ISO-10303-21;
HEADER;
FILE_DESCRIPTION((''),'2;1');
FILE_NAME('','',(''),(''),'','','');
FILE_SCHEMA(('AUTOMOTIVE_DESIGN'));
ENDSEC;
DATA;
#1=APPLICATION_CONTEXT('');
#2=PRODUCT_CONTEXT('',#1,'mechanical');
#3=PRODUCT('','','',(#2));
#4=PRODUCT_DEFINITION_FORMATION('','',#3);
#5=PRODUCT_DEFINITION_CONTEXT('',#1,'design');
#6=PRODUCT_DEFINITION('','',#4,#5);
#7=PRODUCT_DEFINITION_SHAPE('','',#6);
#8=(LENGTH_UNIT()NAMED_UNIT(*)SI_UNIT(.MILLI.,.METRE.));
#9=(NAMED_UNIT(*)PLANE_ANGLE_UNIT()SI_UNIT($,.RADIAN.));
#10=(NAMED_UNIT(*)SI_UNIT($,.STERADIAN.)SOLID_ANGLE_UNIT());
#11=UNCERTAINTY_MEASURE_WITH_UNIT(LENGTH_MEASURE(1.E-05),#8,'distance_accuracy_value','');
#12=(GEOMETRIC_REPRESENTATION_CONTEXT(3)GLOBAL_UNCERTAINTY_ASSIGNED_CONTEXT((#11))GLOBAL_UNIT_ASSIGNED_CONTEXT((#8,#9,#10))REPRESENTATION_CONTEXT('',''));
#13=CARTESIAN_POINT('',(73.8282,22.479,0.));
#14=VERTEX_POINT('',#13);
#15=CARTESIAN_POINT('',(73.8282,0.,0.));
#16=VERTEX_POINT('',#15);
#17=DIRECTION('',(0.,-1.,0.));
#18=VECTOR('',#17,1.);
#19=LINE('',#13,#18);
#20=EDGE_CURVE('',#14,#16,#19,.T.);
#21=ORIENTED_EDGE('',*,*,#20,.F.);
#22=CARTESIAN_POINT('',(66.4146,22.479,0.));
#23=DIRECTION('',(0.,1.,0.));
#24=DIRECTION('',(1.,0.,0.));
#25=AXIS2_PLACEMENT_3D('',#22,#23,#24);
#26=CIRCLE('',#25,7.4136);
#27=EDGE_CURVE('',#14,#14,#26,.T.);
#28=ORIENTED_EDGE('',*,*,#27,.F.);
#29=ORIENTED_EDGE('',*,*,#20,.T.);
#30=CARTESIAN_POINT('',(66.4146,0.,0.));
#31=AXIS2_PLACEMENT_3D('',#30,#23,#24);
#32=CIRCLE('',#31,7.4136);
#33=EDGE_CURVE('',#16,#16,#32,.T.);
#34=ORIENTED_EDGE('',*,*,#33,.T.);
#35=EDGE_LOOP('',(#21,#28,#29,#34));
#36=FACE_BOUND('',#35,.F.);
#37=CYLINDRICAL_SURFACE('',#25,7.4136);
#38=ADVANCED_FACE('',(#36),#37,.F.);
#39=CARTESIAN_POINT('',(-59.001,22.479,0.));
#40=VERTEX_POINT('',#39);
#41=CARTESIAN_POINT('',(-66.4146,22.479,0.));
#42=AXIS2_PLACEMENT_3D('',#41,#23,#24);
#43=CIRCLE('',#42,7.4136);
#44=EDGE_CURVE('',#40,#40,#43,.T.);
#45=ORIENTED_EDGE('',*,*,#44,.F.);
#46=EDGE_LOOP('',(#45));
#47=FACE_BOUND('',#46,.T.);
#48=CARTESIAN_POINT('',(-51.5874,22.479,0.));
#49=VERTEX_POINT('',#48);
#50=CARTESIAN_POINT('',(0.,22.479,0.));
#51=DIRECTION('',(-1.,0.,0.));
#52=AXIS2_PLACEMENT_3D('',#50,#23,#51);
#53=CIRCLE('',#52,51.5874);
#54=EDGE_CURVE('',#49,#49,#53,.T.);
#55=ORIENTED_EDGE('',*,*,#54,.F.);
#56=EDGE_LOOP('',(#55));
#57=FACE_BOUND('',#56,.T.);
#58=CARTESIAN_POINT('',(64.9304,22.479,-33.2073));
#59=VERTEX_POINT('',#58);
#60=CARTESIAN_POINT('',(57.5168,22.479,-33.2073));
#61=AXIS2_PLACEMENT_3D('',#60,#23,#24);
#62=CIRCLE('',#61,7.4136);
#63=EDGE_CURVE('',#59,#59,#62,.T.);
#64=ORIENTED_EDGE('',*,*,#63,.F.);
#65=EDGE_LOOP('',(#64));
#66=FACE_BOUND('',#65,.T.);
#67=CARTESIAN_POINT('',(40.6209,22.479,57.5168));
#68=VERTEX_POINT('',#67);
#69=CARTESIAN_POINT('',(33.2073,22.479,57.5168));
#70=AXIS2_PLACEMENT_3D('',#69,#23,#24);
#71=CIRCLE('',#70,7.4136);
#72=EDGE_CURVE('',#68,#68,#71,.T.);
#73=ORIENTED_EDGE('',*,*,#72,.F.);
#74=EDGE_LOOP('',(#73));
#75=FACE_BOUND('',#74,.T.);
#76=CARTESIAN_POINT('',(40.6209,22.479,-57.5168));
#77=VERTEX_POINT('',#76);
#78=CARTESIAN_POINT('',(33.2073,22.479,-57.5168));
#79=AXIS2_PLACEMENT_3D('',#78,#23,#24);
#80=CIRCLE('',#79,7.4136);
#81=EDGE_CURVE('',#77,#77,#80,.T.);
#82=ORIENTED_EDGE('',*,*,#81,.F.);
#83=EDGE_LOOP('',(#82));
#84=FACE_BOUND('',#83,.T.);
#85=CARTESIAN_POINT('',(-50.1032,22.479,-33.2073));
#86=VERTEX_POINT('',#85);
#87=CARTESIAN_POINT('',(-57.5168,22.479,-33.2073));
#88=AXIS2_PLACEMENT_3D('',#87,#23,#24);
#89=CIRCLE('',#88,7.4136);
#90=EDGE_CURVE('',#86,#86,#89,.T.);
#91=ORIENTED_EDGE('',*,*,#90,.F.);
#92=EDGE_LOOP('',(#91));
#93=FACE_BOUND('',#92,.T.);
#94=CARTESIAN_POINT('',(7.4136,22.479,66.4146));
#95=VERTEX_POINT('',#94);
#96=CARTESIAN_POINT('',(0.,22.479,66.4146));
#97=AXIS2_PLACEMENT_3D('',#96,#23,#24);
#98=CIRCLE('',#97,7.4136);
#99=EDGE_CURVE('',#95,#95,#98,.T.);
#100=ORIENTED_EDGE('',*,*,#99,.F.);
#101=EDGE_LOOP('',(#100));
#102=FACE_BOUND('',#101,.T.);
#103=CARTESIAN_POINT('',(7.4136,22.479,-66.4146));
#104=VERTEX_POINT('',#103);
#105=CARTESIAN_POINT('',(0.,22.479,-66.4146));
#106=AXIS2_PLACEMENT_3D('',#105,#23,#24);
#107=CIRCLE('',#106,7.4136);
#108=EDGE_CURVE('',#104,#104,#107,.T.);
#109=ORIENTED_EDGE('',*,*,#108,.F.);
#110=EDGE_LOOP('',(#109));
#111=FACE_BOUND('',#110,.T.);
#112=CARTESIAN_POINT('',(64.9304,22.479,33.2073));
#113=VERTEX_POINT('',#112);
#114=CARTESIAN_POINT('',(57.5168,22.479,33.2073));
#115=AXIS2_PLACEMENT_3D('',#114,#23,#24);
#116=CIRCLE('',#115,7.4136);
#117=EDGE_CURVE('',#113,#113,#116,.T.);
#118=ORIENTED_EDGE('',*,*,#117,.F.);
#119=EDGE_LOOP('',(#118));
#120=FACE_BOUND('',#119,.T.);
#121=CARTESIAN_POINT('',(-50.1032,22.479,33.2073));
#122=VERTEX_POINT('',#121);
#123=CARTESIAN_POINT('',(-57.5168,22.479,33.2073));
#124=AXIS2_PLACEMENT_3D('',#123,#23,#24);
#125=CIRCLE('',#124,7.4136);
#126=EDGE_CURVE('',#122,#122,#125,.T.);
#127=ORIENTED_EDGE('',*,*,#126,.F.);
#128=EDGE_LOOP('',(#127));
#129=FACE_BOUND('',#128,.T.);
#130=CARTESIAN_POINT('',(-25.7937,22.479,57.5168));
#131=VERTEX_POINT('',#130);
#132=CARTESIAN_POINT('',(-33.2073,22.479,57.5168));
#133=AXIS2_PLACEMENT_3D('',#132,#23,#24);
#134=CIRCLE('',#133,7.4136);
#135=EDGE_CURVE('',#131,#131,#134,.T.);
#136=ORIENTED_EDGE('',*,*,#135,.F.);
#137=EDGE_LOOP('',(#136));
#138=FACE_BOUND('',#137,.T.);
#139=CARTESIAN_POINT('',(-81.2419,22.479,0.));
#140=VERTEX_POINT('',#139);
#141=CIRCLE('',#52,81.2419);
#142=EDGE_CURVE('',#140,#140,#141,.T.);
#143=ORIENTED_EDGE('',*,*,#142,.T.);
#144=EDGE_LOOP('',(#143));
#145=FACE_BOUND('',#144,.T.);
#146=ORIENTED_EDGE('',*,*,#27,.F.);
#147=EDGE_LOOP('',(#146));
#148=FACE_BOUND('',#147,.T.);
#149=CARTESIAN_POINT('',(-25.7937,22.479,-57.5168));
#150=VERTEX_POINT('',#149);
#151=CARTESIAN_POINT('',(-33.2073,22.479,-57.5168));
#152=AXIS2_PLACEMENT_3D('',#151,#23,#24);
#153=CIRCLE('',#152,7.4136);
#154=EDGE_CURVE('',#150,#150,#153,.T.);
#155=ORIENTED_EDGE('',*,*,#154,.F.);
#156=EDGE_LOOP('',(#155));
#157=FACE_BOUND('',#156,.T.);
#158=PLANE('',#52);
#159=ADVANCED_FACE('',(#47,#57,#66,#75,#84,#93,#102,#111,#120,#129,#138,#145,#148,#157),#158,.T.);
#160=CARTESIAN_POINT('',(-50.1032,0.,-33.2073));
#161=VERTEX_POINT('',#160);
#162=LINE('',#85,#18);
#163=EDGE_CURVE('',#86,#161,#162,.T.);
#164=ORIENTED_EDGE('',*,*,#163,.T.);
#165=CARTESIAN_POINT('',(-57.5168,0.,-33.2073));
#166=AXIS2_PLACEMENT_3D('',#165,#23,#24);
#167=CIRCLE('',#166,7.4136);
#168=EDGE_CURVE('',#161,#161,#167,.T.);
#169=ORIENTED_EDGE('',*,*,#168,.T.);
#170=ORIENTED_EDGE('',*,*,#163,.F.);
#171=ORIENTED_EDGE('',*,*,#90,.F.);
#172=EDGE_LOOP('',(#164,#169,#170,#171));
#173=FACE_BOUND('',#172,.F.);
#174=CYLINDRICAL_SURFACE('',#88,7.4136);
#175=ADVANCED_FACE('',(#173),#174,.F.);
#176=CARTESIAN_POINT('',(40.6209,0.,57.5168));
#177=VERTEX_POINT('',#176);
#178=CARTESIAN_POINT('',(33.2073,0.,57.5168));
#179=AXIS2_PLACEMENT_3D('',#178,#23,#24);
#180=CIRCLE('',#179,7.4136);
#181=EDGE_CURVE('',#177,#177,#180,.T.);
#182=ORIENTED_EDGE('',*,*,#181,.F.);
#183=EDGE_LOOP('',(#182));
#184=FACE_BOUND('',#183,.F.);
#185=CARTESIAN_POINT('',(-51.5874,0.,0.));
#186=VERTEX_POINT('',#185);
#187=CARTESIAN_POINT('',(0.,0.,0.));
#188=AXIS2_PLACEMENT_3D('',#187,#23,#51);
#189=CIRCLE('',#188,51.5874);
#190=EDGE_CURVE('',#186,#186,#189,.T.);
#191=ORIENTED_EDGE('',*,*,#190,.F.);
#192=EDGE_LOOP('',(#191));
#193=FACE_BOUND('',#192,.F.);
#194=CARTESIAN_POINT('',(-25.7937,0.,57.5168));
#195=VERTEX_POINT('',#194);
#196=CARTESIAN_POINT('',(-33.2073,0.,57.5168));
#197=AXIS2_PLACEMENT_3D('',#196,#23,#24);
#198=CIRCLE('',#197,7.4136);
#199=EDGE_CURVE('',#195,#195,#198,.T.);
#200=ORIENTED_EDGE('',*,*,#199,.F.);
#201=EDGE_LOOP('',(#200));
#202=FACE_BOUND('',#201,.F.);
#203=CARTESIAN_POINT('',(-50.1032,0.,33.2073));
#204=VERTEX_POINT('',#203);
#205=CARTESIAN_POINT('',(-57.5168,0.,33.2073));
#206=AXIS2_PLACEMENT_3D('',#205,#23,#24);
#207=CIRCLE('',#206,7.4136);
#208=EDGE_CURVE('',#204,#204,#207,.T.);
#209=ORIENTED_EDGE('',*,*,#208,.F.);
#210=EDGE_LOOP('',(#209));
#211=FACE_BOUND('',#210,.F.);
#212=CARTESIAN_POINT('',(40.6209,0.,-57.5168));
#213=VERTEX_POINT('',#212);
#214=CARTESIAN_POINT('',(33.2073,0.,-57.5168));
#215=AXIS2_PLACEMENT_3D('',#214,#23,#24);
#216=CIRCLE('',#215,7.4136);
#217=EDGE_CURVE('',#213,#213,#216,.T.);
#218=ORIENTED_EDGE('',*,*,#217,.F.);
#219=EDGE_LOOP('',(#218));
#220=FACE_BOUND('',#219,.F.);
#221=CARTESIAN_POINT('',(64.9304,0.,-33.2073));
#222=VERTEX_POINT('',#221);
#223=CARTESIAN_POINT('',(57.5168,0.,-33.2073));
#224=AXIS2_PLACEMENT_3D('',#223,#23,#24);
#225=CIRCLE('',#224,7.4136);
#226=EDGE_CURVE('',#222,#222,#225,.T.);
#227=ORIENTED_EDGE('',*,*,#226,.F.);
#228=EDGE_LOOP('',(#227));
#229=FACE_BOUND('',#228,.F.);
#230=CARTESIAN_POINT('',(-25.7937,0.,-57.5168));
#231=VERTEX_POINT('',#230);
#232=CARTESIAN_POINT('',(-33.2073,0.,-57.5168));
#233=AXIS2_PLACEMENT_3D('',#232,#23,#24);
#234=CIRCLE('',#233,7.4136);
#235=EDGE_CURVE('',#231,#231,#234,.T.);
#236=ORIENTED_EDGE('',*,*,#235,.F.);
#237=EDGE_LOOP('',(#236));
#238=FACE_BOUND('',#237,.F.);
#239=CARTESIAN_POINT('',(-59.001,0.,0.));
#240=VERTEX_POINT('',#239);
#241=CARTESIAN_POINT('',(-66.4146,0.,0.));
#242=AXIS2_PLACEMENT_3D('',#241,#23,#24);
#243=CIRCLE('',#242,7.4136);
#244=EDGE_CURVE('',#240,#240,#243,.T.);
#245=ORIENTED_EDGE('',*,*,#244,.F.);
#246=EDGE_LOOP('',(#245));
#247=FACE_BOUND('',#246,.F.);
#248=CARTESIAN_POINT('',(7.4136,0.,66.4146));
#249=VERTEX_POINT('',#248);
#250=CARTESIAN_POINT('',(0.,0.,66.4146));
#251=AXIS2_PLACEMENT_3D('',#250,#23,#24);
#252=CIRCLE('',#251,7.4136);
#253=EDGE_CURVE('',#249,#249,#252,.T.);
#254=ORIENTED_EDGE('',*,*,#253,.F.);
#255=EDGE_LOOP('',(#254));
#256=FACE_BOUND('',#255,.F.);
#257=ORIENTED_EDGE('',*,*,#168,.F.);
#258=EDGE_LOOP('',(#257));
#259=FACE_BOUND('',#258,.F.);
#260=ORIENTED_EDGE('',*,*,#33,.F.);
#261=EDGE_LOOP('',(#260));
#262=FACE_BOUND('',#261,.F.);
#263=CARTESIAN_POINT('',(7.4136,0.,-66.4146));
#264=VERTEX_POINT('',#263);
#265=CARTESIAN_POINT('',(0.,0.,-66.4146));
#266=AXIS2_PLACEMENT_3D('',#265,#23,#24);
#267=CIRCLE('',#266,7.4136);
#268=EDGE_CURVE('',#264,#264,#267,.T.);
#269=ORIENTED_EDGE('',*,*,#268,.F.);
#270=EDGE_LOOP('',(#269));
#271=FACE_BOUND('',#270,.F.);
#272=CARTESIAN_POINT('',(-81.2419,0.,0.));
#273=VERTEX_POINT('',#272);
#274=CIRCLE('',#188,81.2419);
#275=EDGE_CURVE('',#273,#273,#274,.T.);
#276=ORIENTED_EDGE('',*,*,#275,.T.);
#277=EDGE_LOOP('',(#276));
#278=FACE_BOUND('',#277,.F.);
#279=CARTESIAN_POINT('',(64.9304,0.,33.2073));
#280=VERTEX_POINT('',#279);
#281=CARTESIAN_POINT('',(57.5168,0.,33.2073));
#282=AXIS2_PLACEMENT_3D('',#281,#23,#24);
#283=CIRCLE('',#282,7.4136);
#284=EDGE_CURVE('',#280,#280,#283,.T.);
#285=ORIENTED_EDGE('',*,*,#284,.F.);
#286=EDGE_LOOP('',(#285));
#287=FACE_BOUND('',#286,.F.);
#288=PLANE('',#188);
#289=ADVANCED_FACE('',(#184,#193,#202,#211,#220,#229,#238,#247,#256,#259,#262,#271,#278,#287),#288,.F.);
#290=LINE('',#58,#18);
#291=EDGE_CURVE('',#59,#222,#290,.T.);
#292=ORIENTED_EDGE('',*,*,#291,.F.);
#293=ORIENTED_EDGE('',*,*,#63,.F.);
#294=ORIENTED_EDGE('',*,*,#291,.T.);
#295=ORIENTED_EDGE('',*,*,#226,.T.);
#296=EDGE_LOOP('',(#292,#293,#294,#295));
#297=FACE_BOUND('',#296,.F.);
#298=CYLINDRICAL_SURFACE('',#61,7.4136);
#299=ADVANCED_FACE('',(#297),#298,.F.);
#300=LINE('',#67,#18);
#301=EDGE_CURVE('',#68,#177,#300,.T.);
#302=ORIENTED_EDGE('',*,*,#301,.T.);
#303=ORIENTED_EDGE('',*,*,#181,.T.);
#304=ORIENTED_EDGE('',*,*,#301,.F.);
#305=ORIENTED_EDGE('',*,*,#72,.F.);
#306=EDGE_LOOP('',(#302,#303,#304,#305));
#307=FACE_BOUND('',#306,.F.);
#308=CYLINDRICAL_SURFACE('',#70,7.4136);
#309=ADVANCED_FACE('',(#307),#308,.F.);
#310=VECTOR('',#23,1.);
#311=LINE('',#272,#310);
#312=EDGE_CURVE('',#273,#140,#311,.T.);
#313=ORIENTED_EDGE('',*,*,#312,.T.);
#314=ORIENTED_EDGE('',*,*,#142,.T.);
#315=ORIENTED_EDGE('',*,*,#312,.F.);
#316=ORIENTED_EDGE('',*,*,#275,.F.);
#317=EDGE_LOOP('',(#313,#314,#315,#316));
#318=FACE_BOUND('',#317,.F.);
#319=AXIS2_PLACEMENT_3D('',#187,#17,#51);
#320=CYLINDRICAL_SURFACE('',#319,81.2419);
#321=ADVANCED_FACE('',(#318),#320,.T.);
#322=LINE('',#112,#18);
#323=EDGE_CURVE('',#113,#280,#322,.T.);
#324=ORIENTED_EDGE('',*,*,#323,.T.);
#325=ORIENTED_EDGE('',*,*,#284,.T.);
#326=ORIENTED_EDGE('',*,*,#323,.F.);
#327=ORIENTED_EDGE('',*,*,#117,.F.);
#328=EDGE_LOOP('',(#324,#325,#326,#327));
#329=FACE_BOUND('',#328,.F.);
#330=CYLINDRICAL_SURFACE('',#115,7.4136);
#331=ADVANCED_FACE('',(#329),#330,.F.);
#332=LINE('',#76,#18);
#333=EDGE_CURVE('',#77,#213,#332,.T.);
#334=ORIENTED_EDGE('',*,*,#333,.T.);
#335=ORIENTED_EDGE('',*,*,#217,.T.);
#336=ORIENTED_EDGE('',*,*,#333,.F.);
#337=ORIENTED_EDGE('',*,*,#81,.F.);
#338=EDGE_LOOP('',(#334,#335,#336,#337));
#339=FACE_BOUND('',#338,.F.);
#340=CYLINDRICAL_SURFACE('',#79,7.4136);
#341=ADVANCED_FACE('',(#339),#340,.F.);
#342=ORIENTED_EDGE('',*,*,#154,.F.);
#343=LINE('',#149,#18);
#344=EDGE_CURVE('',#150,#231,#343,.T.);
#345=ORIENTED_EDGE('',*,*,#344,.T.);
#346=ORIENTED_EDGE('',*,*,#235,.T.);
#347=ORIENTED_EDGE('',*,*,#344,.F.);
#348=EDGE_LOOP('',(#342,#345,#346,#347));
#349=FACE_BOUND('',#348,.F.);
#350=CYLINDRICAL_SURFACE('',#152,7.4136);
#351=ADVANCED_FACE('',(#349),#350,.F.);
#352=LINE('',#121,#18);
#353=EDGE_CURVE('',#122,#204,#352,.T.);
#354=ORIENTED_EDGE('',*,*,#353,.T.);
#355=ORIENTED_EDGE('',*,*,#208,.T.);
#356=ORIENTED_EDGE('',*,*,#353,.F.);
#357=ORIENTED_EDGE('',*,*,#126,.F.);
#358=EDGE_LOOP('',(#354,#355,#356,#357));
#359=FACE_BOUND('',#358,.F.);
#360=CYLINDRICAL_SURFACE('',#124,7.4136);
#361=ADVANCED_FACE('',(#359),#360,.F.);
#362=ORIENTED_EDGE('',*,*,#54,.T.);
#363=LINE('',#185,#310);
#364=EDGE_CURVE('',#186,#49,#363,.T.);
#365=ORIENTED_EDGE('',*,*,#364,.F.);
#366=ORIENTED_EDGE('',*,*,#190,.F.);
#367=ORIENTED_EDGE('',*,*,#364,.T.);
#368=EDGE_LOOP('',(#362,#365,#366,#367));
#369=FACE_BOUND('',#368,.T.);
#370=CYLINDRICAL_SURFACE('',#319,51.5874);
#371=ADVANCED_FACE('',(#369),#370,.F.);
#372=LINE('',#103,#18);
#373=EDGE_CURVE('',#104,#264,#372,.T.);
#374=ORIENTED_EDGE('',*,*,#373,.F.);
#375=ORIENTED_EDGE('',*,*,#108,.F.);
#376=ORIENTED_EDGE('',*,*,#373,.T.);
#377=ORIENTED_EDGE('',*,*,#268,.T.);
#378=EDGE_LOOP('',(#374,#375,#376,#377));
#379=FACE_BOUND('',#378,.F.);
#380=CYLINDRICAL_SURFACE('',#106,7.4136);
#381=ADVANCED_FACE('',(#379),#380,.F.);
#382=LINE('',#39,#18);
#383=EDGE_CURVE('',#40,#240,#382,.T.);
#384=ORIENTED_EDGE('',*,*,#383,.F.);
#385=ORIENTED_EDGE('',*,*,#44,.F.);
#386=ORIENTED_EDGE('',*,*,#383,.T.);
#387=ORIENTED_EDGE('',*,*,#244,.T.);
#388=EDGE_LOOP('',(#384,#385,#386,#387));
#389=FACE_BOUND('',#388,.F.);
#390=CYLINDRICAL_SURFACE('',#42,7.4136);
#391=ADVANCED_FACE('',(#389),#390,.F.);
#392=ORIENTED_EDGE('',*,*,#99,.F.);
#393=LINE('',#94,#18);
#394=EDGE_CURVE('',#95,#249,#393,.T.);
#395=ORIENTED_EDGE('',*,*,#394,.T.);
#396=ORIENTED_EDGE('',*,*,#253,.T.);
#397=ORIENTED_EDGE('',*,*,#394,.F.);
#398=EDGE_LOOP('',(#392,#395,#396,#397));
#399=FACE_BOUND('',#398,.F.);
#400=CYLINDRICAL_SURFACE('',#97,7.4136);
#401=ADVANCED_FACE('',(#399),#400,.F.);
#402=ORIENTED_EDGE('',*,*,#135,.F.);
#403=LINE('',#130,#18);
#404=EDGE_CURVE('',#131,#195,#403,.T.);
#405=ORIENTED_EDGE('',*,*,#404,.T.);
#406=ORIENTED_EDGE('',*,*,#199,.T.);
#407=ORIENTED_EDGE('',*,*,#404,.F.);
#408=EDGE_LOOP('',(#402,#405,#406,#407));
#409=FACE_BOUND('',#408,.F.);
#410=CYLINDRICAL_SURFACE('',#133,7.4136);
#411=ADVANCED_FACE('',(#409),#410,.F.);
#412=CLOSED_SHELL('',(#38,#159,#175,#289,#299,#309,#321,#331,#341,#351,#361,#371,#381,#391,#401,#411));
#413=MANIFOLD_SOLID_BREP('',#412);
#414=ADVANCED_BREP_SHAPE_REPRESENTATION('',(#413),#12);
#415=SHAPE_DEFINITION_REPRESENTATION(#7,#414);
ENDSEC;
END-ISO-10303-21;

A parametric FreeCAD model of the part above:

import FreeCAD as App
import Part
import Sketcher
Q = App.Units.Quantity

doc = App.newDocument("Part")
params = doc.addObject("Spreadsheet::Sheet", "Params")
for row, (alias, value) in enumerate([
    ("sketch1_diameter", "6.397 in"),
    ("sketch1_diameter2", "4.062 in"),
    ("pad1_length", "0.885 in"),
], start=1):
    params.set(f"A{row}", alias)
    params.set(f"B{row}", "=" + value)
    params.setAlias(f"B{row}", alias)

body = doc.addObject("PartDesign::Body", "Body")

# Sketch on XZ plane
sketch1 = body.newObject("Sketcher::SketchObject", "Sketch")
sketch1.AttachmentSupport = (doc.getObject("XZ_Plane"), [""])
sketch1.MapMode = "FlatFace"
sketch1.addGeometry(Part.Circle(App.Vector(0, 0, 0), App.Vector(0, 0, 1), 81), False)
sketch1.addGeometry(Part.Circle(App.Vector(0, 0, 0), App.Vector(0, 0, 1), 52), False)
sketch1.addConstraint(Sketcher.Constraint("Coincident", 0, 3, -1, 1))
sketch1.addConstraint(Sketcher.Constraint("Coincident", 1, 3, -1, 1))
sketch1.addConstraint(Sketcher.Constraint("Diameter", 0, Q("6.397 in")))
sketch1.addConstraint(Sketcher.Constraint("Diameter", 1, Q("4.062 in")))
sketch1.setExpression("Constraints[2]", "Params.sketch1_diameter")
sketch1.setExpression("Constraints[3]", "Params.sketch1_diameter2")
pad1 = body.newObject("PartDesign::Pad", "Pad")
pad1.Profile = sketch1
pad1.setExpression("Length", "Params.pad1_length")
pad1.Reversed = True

# Sketch on XZ plane
sketch2 = body.newObject("Sketcher::SketchObject", "Sketch001")
sketch2.AttachmentSupport = (doc.getObject("XZ_Plane"), [""])
sketch2.MapMode = "FlatFace"
sketch2.AttachmentOffset = App.Placement(App.Vector(0, 0, -0.885 * 25.4), App.Rotation())
sketch2.addGeometry(Part.Circle(App.Vector(66, 0, 0), App.Vector(0, 0, 1), 7), False)
sketch2.addGeometry(Part.Circle(App.Vector(58, -33, 0), App.Vector(0, 0, 1), 7), False)
sketch2.addGeometry(Part.Circle(App.Vector(33, -58, 0), App.Vector(0, 0, 1), 7), False)
sketch2.addGeometry(Part.Circle(App.Vector(0, -66, 0), App.Vector(0, 0, 1), 7), False)
sketch2.addGeometry(Part.Circle(App.Vector(-33, -58, 0), App.Vector(0, 0, 1), 7), False)
sketch2.addGeometry(Part.Circle(App.Vector(-58, -33, 0), App.Vector(0, 0, 1), 7), False)
sketch2.addGeometry(Part.Circle(App.Vector(-66, 0, 0), App.Vector(0, 0, 1), 7), False)
sketch2.addGeometry(Part.Circle(App.Vector(-58, 33, 0), App.Vector(0, 0, 1), 7), False)
sketch2.addGeometry(Part.Circle(App.Vector(-33, 58, 0), App.Vector(0, 0, 1), 7), False)
sketch2.addGeometry(Part.Circle(App.Vector(0, 66, 0), App.Vector(0, 0, 1), 7), False)
sketch2.addGeometry(Part.Circle(App.Vector(33, 58, 0), App.Vector(0, 0, 1), 7), False)
sketch2.addGeometry(Part.Circle(App.Vector(58, 33, 0), App.Vector(0, 0, 1), 7), False)
sketch2.addConstraint(Sketcher.Constraint("Equal", 0, 1))
sketch2.addConstraint(Sketcher.Constraint("Equal", 1, 2))
sketch2.addConstraint(Sketcher.Constraint("Equal", 2, 3))
sketch2.addConstraint(Sketcher.Constraint("Equal", 3, 4))
sketch2.addConstraint(Sketcher.Constraint("Equal", 4, 5))
sketch2.addConstraint(Sketcher.Constraint("Equal", 5, 6))
sketch2.addConstraint(Sketcher.Constraint("Equal", 6, 7))
sketch2.addConstraint(Sketcher.Constraint("Equal", 7, 8))
sketch2.addConstraint(Sketcher.Constraint("Equal", 8, 9))
sketch2.addConstraint(Sketcher.Constraint("Equal", 9, 10))
sketch2.addConstraint(Sketcher.Constraint("Equal", 10, 11))
sketch2.addConstraint(Sketcher.Constraint("Symmetric", 0, 3, 6, 3, -1, 1))
sketch2.addConstraint(Sketcher.Constraint("Symmetric", 1, 3, 7, 3, -1, 1))
sketch2.addConstraint(Sketcher.Constraint("Symmetric", 2, 3, 8, 3, -1, 1))
sketch2.addConstraint(Sketcher.Constraint("Symmetric", 3, 3, 9, 3, -1, 1))
sketch2.addConstraint(Sketcher.Constraint("Symmetric", 4, 3, 10, 3, -1, 1))
sketch2.addConstraint(Sketcher.Constraint("Symmetric", 5, 3, 11, 3, -1, 1))
sketch2.addConstraint(Sketcher.Constraint("Symmetric", 2, 3, 4, 3, -2))
sketch2.addConstraint(Sketcher.Constraint("Symmetric", 1, 3, 5, 3, -2))
sketch2.addConstraint(Sketcher.Constraint("PointOnObject", 0, 3, -1))
sketch2.addConstraint(Sketcher.Constraint("PointOnObject", 3, 3, -2))
sketch2.addConstraint(Sketcher.Constraint("Diameter", 0, Q("14.8272 mm")))
sketch2.addConstraint(Sketcher.Constraint("DistanceX", -1, 1, 0, 3, Q("66.4146 mm")))
sketch2.addConstraint(Sketcher.Constraint("DistanceY", 3, 3, -1, 1, Q("66.4146 mm")))
sketch2.addConstraint(Sketcher.Constraint("DistanceX", 4, 3, 2, 3, Q("66.4146 mm")))
sketch2.addConstraint(Sketcher.Constraint("DistanceY", 5, 3, 7, 3, Q("66.4146 mm")))
sketch2.addConstraint(Sketcher.Constraint("DistanceX", 1, 3, 0, 3, Q("0.3503 in")))
sketch2.addConstraint(Sketcher.Constraint("DistanceY", 3, 3, 2, 3, Q("0.3503 in")))
pocket1 = body.newObject("PartDesign::Pocket", "Pocket")
pocket1.Profile = sketch2
pocket1.Type = "ThroughAll"
pocket1.Reversed = True

doc.recompute()
